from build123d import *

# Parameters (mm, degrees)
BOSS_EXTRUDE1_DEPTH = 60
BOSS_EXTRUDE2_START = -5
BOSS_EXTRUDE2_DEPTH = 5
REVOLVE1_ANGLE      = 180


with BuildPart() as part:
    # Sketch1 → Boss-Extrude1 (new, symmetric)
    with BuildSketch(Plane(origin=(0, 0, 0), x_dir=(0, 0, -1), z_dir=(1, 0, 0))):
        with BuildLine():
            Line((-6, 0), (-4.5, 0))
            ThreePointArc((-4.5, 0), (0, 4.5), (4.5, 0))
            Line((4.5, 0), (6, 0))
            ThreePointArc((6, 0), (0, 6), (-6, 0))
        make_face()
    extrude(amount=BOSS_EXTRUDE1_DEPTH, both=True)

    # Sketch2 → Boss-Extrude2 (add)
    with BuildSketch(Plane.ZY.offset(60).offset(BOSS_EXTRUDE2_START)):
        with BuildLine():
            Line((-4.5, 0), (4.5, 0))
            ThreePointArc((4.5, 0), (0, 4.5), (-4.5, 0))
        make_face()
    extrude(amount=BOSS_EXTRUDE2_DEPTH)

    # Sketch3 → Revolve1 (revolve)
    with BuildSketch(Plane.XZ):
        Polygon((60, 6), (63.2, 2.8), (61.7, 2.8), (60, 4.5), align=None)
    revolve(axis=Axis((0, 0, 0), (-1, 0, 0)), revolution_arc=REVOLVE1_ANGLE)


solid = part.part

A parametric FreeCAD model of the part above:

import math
import FreeCAD as App
import Part
import Sketcher

doc = App.newDocument("Part")
body = doc.addObject("PartDesign::Body", "Body")

# Sketch on YZ plane
sketch1 = body.newObject("Sketcher::SketchObject", "Sketch")
sketch1.AttachmentSupport = (doc.getObject("YZ_Plane"), [""])
sketch1.MapMode = "FlatFace"
sketch1.addGeometry([
    Part.LineSegment(App.Vector(0, 6, 0), App.Vector(0, 4.5, 0)),
    Part.ArcOfCircle(Part.Circle(App.Vector(0, 0, 0), App.Vector(0, 0, 1), 4.5), math.radians(-90), math.radians(90)),
    Part.LineSegment(App.Vector(0, -4.5, 0), App.Vector(0, -6, 0)),
    Part.ArcOfCircle(Part.Circle(App.Vector(0, 0, 0), App.Vector(0, 0, 1), 6), math.radians(-90), math.radians(90)),
], False)
sketch1.addConstraint([
    Sketcher.Constraint("Coincident", 0, 2, 1, 2),
    Sketcher.Constraint("Coincident", 1, 1, 2, 1),
    Sketcher.Constraint("Coincident", 2, 2, 3, 1),
    Sketcher.Constraint("Coincident", 3, 2, 0, 1),
    Sketcher.Constraint("Vertical", 0),
    Sketcher.Constraint("Vertical", 2),
    Sketcher.Constraint("Coincident", 1, 3, -1, 1),
    Sketcher.Constraint("Coincident", 3, 3, -1, 1),
    Sketcher.Constraint("PointOnObject", 0, 2, -2),
    Sketcher.Constraint("PointOnObject", 1, 1, -2),
    Sketcher.Constraint("Radius", 3, 6.0),
    Sketcher.Constraint("Radius", 1, 4.5),
])
pad1 = body.newObject("PartDesign::Pad", "Pad")
pad1.Profile = sketch1
pad1.Length = 120
pad1.Midplane = True

# Sketch on YZ plane
sketch2 = body.newObject("Sketcher::SketchObject", "Sketch001")
sketch2.AttachmentSupport = (doc.getObject("YZ_Plane"), [""])
sketch2.MapMode = "FlatFace"
sketch2.AttachmentOffset = App.Placement(App.Vector(0, 0, -55), App.Rotation())
sketch2.addGeometry([
    Part.LineSegment(App.Vector(0, -4.5, 0), App.Vector(0, 4.5, 0)),
    Part.ArcOfCircle(Part.Circle(App.Vector(0, 0, 0), App.Vector(0, 0, 1), 4.5), math.radians(-90), math.radians(90)),
], False)
sketch2.addConstraint([
    Sketcher.Constraint("Coincident", 0, 1, 1, 1),
    Sketcher.Constraint("Coincident", 1, 2, 0, 2),
    Sketcher.Constraint("Vertical", 0),
    Sketcher.Constraint("Coincident", 1, 3, -1, 1),
    Sketcher.Constraint("PointOnObject", 0, 1, -2),
    Sketcher.Constraint("Radius", 1, 4.5),
])
pad2 = body.newObject("PartDesign::Pad", "Pad001")
pad2.Profile = sketch2
pad2.Length = 5
pad2.Reversed = True

# Sketch on XZ plane
sketch3 = body.newObject("Sketcher::SketchObject", "Sketch002")
sketch3.AttachmentSupport = (doc.getObject("XZ_Plane"), [""])
sketch3.MapMode = "FlatFace"
sketch3.addGeometry([
    Part.LineSegment(App.Vector(63.2, 2.8, 0), App.Vector(60, 6, 0)),
    Part.LineSegment(App.Vector(60, 6, 0), App.Vector(60, 4.5, 0)),
    Part.LineSegment(App.Vector(60, 4.5, 0), App.Vector(61.7, 2.8, 0)),
    Part.LineSegment(App.Vector(61.7, 2.8, 0), App.Vector(63.2, 2.8, 0)),
], False)
sketch3.addConstraint([
    Sketcher.Constraint("Coincident", 0, 2, 1, 1),
    Sketcher.Constraint("Coincident", 1, 2, 2, 1),
    Sketcher.Constraint("Coincident", 2, 2, 3, 1),
    Sketcher.Constraint("Coincident", 3, 2, 0, 1),
    Sketcher.Constraint("Vertical", 1),
    Sketcher.Constraint("Horizontal", 3),
    Sketcher.Constraint("Parallel", 0, 2),
    Sketcher.Constraint("Equal", 3, 1),
    Sketcher.Constraint("DistanceX", 3, 1, 3, 2, 1.5),
    Sketcher.Constraint("DistanceX", -1, 1, 0, 2, 60.0),
    Sketcher.Constraint("DistanceY", -1, 1, 0, 2, 6.0),
    Sketcher.Constraint("DistanceX", -1, 1, 2, 2, 61.7),
])
revolution = body.newObject("PartDesign::Revolution", "Revolution")
revolution.Profile = sketch3
revolution.ReferenceAxis = (sketch3, ["H_Axis"])
revolution.Angle = 180
revolution.Reversed = True

doc.recompute()
